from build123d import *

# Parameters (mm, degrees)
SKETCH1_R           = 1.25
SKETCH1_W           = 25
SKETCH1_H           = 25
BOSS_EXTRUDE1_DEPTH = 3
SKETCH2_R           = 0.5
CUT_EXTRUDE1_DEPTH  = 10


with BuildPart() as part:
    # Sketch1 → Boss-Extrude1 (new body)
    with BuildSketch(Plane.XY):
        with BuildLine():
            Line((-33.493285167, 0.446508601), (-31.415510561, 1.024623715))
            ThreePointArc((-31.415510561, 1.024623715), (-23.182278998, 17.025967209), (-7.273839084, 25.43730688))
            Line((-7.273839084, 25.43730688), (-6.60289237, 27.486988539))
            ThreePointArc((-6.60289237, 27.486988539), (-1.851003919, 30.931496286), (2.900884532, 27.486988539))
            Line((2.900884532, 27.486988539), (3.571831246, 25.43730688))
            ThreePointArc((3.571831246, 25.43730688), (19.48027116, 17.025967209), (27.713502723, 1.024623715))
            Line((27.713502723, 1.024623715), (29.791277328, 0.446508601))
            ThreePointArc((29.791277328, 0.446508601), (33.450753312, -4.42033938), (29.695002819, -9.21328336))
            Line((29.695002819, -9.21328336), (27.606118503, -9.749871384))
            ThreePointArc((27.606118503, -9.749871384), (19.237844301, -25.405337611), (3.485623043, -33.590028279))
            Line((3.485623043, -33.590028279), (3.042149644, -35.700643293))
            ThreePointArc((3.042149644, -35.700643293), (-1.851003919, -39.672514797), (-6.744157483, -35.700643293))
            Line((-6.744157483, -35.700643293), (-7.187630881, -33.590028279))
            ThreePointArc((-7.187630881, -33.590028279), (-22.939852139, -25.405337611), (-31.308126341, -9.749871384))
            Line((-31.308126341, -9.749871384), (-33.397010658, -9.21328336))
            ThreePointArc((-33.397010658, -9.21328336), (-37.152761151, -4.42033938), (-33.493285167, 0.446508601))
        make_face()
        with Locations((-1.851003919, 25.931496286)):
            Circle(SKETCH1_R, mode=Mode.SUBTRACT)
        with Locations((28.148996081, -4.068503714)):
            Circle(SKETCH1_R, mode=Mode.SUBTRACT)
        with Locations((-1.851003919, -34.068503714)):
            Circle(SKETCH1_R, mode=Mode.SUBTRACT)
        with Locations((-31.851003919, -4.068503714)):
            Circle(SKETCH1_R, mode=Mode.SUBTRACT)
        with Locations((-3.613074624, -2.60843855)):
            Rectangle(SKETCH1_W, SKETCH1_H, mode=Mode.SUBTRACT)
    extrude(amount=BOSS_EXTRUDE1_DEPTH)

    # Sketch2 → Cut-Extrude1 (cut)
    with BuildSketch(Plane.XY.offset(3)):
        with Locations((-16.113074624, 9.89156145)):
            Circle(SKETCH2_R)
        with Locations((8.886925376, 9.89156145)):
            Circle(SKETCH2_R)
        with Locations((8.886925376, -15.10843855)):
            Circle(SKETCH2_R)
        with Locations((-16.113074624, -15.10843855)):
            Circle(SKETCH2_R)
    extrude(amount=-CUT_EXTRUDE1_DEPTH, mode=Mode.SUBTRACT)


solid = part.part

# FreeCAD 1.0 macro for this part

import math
import FreeCAD as App
import Part
import Sketcher


def add_polygon(sketch, points):
    """Adds a closed chain of lines whose ends are joined by coincident constraints."""
    first, n = sketch.GeometryCount, len(points)
    for a, b in zip(points, points[1:] + points[:1]):
        sketch.addGeometry(Part.LineSegment(App.Vector(*a, 0), App.Vector(*b, 0)), False)
    for i in range(n):
        sketch.addConstraint(Sketcher.Constraint("Coincident", first + i, 2, first + (i + 1) % n, 1))

doc = App.newDocument("Part")
params = doc.addObject("Spreadsheet::Sheet", "Params")
for row, (alias, value) in enumerate([
    ("sketch1_radius", "5 mm"),
    ("sketch1_radius2", "30 mm"),
    ("sketch1_diameter", "2.5 mm"),
    ("sketch1_width", "25 mm"),
    ("pad1_length", "3 mm"),
    ("sketch2_diameter", "1 mm"),
    ("pocket1_length", "10 mm"),
], start=1):
    params.set(f"A{row}", alias)
    params.set(f"B{row}", "=" + value)
    params.setAlias(f"B{row}", alias)

body = doc.addObject("PartDesign::Body", "Body")

sketch1 = doc.addObject("Sketcher::SketchObject", "Sketch")
body.addObject(sketch1)
sketch1.AttachmentSupport = (doc.XY_Plane, [""])
sketch1.MapMode = "FlatFace"
sketch1.addGeometry(Part.LineSegment(App.Vector(-31.4, 1, 0), App.Vector(-33.5, 0.4, 0)), False)
sketch1.addGeometry(Part.ArcOfCircle(Part.Circle(App.Vector(-32.2, -4.4, 0), App.Vector(0, 0, 1), 5), math.radians(106), math.radians(256)), False)
sketch1.addGeometry(Part.LineSegment(App.Vector(-33.4, -9.2, 0), App.Vector(-31.3, -9.7, 0)), False)
sketch1.addGeometry(Part.ArcOfCircle(Part.Circle(App.Vector(-1.9, -4.1, 0), App.Vector(0, 0, 1), 30), math.radians(-169), math.radians(-100)), False)
sketch1.addGeometry(Part.LineSegment(App.Vector(-7.2, -33.6, 0), App.Vector(-6.7, -35.7, 0)), False)
sketch1.addGeometry(Part.ArcOfCircle(Part.Circle(App.Vector(-1.9, -34.7, 0), App.Vector(0, 0, 1), 5), math.radians(-168), math.radians(-12)), False)
sketch1.addGeometry(Part.LineSegment(App.Vector(3, -35.7, 0), App.Vector(3.5, -33.6, 0)), False)
sketch1.addGeometry(Part.ArcOfCircle(Part.Circle(App.Vector(-1.9, -4.1, 0), App.Vector(0, 0, 1), 30), math.radians(-80), math.radians(-11)), False)
sketch1.addGeometry(Part.LineSegment(App.Vector(27.6, -9.7, 0), App.Vector(29.7, -9.2, 0)), False)
sketch1.addGeometry(Part.ArcOfCircle(Part.Circle(App.Vector(28.5, -4.4, 0), App.Vector(0, 0, 1), 5), math.radians(-76), math.radians(74)), False)
sketch1.addGeometry(Part.LineSegment(App.Vector(29.8, 0.4, 0), App.Vector(27.7, 1, 0)), False)
sketch1.addGeometry(Part.ArcOfCircle(Part.Circle(App.Vector(-1.9, -4.1, 0), App.Vector(0, 0, 1), 30), math.radians(10), math.radians(80)), False)
sketch1.addGeometry(Part.LineSegment(App.Vector(3.6, 25.4, 0), App.Vector(2.9, 27.5, 0)), False)
sketch1.addGeometry(Part.ArcOfCircle(Part.Circle(App.Vector(-1.9, 25.9, 0), App.Vector(0, 0, 1), 5), math.radians(18), math.radians(162)), False)
sketch1.addGeometry(Part.LineSegment(App.Vector(-6.6, 27.5, 0), App.Vector(-7.3, 25.4, 0)), False)
sketch1.addGeometry(Part.ArcOfCircle(Part.Circle(App.Vector(-1.9, -4.1, 0), App.Vector(0, 0, 1), 30), math.radians(100), math.radians(170)), False)
sketch1.addGeometry(Part.Circle(App.Vector(-1.9, -34.1, 0), App.Vector(0, 0, 1), 1.2), False)
sketch1.addGeometry(Part.Circle(App.Vector(28.1, -4.1, 0), App.Vector(0, 0, 1), 1.2), False)
add_polygon(sketch1, [(-16.1, -15.1), (-16.1, 9.9), (8.9, 9.9), (8.9, -15.1)])
sketch1.addGeometry(Part.Circle(App.Vector(-31.9, -4.1, 0), App.Vector(0, 0, 1), 1.2), False)
sketch1.addGeometry(Part.Circle(App.Vector(-1.9, 25.9, 0), App.Vector(0, 0, 1), 1.2), False)
sketch1.addConstraint([
    Sketcher.Constraint("Tangent", 0, 2, 1, 1),
    Sketcher.Constraint("Tangent", 1, 2, 2, 1),
    Sketcher.Constraint("Coincident", 2, 2, 3, 1),
    Sketcher.Constraint("Coincident", 3, 2, 4, 1),
    Sketcher.Constraint("Tangent", 4, 2, 5, 1),
    Sketcher.Constraint("Tangent", 5, 2, 6, 1),
    Sketcher.Constraint("Coincident", 6, 2, 7, 1),
    Sketcher.Constraint("Coincident", 7, 2, 8, 1),
    Sketcher.Constraint("Tangent", 8, 2, 9, 1),
    Sketcher.Constraint("Tangent", 9, 2, 10, 1),
    Sketcher.Constraint("Coincident", 10, 2, 11, 1),
    Sketcher.Constraint("Coincident", 11, 2, 12, 1),
    Sketcher.Constraint("Tangent", 12, 2, 13, 1),
    Sketcher.Constraint("Tangent", 13, 2, 14, 1),
    Sketcher.Constraint("Coincident", 14, 2, 15, 1),
    Sketcher.Constraint("Coincident", 15, 2, 0, 1),
    Sketcher.Constraint("Vertical", 18),
    Sketcher.Constraint("Horizontal", 19),
    Sketcher.Constraint("Vertical", 20),
    Sketcher.Constraint("Horizontal", 21),
    Sketcher.Constraint("Coincident", 7, 3, 3, 3),
    Sketcher.Constraint("Coincident", 11, 3, 3, 3),
    Sketcher.Constraint("Coincident", 15, 3, 3, 3),
    Sketcher.Constraint("Coincident", 23, 3, 13, 3),
    Sketcher.Constraint("Equal", 1, 5),
    Sketcher.Constraint("Equal", 3, 7),
    Sketcher.Constraint("Equal", 5, 9),
    Sketcher.Constraint("Equal", 7, 11),
    Sketcher.Constraint("Equal", 9, 13),
    Sketcher.Constraint("Equal", 11, 15),
    Sketcher.Constraint("Equal", 16, 17),
    Sketcher.Constraint("Equal", 17, 22),
    Sketcher.Constraint("Equal", 22, 23),
    Sketcher.Constraint("Horizontal", 1, 3, 9, 3),
    Sketcher.Constraint("Horizontal", 15, 3, 17, 3),
    Sketcher.Constraint("Horizontal", 17, 3, 22, 3),
    Sketcher.Constraint("Horizontal", 4, 2, 5, 2),
    Sketcher.Constraint("Horizontal", 3, 2, 6, 2),
    Sketcher.Constraint("Horizontal", 2, 2, 7, 2),
    Sketcher.Constraint("Horizontal", 1, 2, 8, 2),
    Sketcher.Constraint("Horizontal", 0, 2, 9, 2),
    Sketcher.Constraint("Horizontal", 12, 2, 13, 2),
    Sketcher.Constraint("Horizontal", 11, 2, 14, 2),
    Sketcher.Constraint("Vertical", 15, 3, 16, 3),
    Sketcher.Constraint("Equal", 21, 18),
    Sketcher.Constraint("Equal", 0, 2),
    Sketcher.Constraint("Equal", 2, 4),
    Sketcher.Constraint("Equal", 10, 12),
    Sketcher.Constraint("Radius", 1, 5.0),
    Sketcher.Constraint("Radius", 3, 30.0),
    Sketcher.Constraint("Diameter", 16, 2.5),
    Sketcher.Constraint("DistanceX", 19, 1, 19, 2, 25.0),
    Sketcher.Constraint("DistanceY", 11, 3, 13, 3, 30.0),
    Sketcher.Constraint("DistanceY", 16, 3, 3, 3, 30.0),
    Sketcher.Constraint("DistanceX", 7, 3, 17, 3, 30.0),
    Sketcher.Constraint("DistanceX", 22, 3, 3, 3, 30.0),
    Sketcher.Constraint("DistanceX", -1, 1, 9, 3, 28.451002),
    Sketcher.Constraint("DistanceX", 1, 2, 1, 3, 1.244001),
    Sketcher.Constraint("DistanceX", 10, 2, 9, 3, 0.737499),
    Sketcher.Constraint("DistanceX", 1, 3, -1, 1, 32.153009),
    Sketcher.Constraint("DistanceY", 1, 3, -1, 1, 4.370509),
    Sketcher.Constraint("DistanceX", 3, 2, -1, 1, 7.187631),
    Sketcher.Constraint("DistanceY", -1, 1, 18, 2, 9.891561),
    Sketcher.Constraint("DistanceX", 0, 2, 18, 2, 17.380211),
])
sketch1.setExpression("Constraints[52]", "Params.sketch1_radius")
sketch1.setExpression("Constraints[53]", "Params.sketch1_radius2")
sketch1.setExpression("Constraints[54]", "Params.sketch1_diameter")
sketch1.setExpression("Constraints[55]", "Params.sketch1_width")
pad1 = doc.addObject("PartDesign::Pad", "Pad")
body.addObject(pad1)
pad1.Profile = sketch1
pad1.setExpression("Length", "Params.pad1_length")

sketch2 = doc.addObject("Sketcher::SketchObject", "Sketch001")
body.addObject(sketch2)
sketch2.AttachmentSupport = (doc.XY_Plane, [""])
sketch2.MapMode = "FlatFace"
sketch2.AttachmentOffset = App.Placement(App.Vector(0, 0, 3), App.Rotation())
sketch2.addGeometry([
    Part.Circle(App.Vector(-16.1, 9.9, 0), App.Vector(0, 0, 1), 0.5),
    Part.Circle(App.Vector(8.9, 9.9, 0), App.Vector(0, 0, 1), 0.5),
    Part.Circle(App.Vector(8.9, -15.1, 0), App.Vector(0, 0, 1), 0.5),
    Part.Circle(App.Vector(-16.1, -15.1, 0), App.Vector(0, 0, 1), 0.5),
], False)
sketch2.addConstraint([
    Sketcher.Constraint("Equal", 0, 1),
    Sketcher.Constraint("Equal", 1, 2),
    Sketcher.Constraint("Equal", 2, 3),
    Sketcher.Constraint("Horizontal", 0, 3, 1, 3),
    Sketcher.Constraint("Horizontal", 2, 3, 3, 3),
    Sketcher.Constraint("Vertical", 1, 3, 2, 3),
    Sketcher.Constraint("Vertical", 0, 3, 3, 3),
    Sketcher.Constraint("Diameter", 0, 1.0),
    Sketcher.Constraint("DistanceX", 0, 3, 1, 3, 25.0),
    Sketcher.Constraint("DistanceY", 2, 3, 1, 3, 25.0),
    Sketcher.Constraint("DistanceY", -1, 1, 0, 3, 9.891561),
    Sketcher.Constraint("DistanceX", 0, 3, -1, 1, 16.113075),
])
sketch2.setExpression("Constraints[7]", "Params.sketch2_diameter")
pocket1 = doc.addObject("PartDesign::Pocket", "Pocket")
body.addObject(pocket1)
pocket1.Profile = sketch2
pocket1.setExpression("Length", "Params.pocket1_length")

doc.recompute()
